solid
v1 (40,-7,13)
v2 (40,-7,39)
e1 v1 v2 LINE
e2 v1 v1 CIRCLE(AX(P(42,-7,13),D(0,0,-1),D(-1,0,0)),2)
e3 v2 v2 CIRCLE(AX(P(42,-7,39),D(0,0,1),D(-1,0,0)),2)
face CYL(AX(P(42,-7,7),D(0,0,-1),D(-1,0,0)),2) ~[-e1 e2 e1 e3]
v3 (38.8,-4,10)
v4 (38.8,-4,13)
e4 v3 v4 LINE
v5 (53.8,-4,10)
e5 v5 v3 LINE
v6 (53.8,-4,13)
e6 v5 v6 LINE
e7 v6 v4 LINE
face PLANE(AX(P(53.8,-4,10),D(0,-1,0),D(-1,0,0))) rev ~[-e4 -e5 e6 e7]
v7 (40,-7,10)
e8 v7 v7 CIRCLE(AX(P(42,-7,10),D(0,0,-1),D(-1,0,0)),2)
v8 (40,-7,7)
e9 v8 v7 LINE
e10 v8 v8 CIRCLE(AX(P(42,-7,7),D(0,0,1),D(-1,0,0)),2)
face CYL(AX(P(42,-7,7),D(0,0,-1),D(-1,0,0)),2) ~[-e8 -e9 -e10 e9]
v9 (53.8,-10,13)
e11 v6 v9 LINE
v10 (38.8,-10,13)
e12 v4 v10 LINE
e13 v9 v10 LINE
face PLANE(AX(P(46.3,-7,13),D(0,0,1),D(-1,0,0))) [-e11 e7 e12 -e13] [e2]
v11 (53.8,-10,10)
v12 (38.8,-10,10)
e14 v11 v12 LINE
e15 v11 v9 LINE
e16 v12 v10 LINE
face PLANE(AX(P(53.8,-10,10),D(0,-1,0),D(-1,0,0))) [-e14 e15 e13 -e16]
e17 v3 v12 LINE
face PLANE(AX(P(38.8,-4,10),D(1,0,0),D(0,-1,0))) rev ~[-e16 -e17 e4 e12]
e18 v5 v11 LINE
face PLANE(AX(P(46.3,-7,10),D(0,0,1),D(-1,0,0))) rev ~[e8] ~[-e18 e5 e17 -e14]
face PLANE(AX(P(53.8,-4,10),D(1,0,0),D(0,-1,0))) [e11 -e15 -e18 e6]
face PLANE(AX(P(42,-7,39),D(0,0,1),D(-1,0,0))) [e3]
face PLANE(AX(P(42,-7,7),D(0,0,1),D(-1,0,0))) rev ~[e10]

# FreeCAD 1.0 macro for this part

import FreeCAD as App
import Part
import Sketcher


def add_polygon(sketch, points):
    """Adds a closed chain of lines whose ends are joined by coincident constraints."""
    first, n = sketch.GeometryCount, len(points)
    for a, b in zip(points, points[1:] + points[:1]):
        sketch.addGeometry(Part.LineSegment(App.Vector(*a, 0), App.Vector(*b, 0)), False)
    for i in range(n):
        sketch.addConstraint(Sketcher.Constraint("Coincident", first + i, 2, first + (i + 1) % n, 1))

doc = App.newDocument("Part")
body = doc.addObject("PartDesign::Body", "Body")

# Sketch on XY plane
sketch1 = body.newObject("Sketcher::SketchObject", "Sketch")
sketch1.AttachmentSupport = (doc.getObject("XY_Plane"), [""])
sketch1.MapMode = "FlatFace"
sketch1.AttachmentOffset = App.Placement(App.Vector(0, 0, 3), App.Rotation())
add_polygon(sketch1, [(58.2, 73), (58.2, 67), (73.2, 67), (73.2, 73)])  # lines 0-3
sketch1.addConstraint(Sketcher.Constraint("Vertical", 0))
sketch1.addConstraint(Sketcher.Constraint("Horizontal", 1))
sketch1.addConstraint(Sketcher.Constraint("Vertical", 2))
sketch1.addConstraint(Sketcher.Constraint("Horizontal", 3))
sketch1.addConstraint(Sketcher.Constraint("DistanceX", 1, 1, 1, 2, 15.0))
sketch1.addConstraint(Sketcher.Constraint("DistanceY", 0, 2, 0, 1, 6.0))
sketch1.addConstraint(Sketcher.Constraint("DistanceY", -1, 1, 0, 2, 67.0))
sketch1.addConstraint(Sketcher.Constraint("DistanceX", -1, 1, 0, 2, 58.2))
pad1 = body.newObject("PartDesign::Pad", "Pad")
pad1.Profile = sketch1
pad1.Length = 3
body2 = doc.addObject("PartDesign::Body", "Body001")

# Sketch on XY plane
sketch2 = body2.newObject("Sketcher::SketchObject", "Sketch001")
sketch2.AttachmentSupport = (doc.getObject("XY_Plane001"), [""])
sketch2.MapMode = "FlatFace"
sketch2.AttachmentOffset = App.Placement(App.Vector(0, 0, 7), App.Rotation())
sketch2.addGeometry(Part.Circle(App.Vector(70, 70, 0), App.Vector(0, 0, 1), 1.5), False)
sketch2.addConstraint(Sketcher.Constraint("Diameter", 0, 3.0))
sketch2.addConstraint(Sketcher.Constraint("DistanceX", -1, 1, 0, 3, 70.0))
sketch2.addConstraint(Sketcher.Constraint("DistanceY", -1, 1, 0, 3, 70.0))
pad2 = body2.newObject("PartDesign::Pad", "Pad001")
pad2.Profile = sketch2
pad2.Length = 25
body3 = doc.addObject("PartDesign::Body", "Body002")

# Sketch on XY plane
sketch3 = body3.newObject("Sketcher::SketchObject", "Sketch002")
sketch3.AttachmentSupport = (doc.getObject("XY_Plane002"), [""])
sketch3.MapMode = "FlatFace"
sketch3.addGeometry(Part.Circle(App.Vector(70, 70, 0), App.Vector(0, 0, 1), 2), False)
sketch3.addConstraint(Sketcher.Constraint("Diameter", 0, 4.0))
sketch3.addConstraint(Sketcher.Constraint("DistanceX", -1, 1, 0, 3, 70.0))
sketch3.addConstraint(Sketcher.Constraint("DistanceY", -1, 1, 0, 3, 70.0))
pad3 = body3.newObject("PartDesign::Pad", "Pad002")
pad3.Profile = sketch3
pad3.Length = 32
doc.recompute()

boolean = body3.newObject("PartDesign::Boolean", "Boolean")
boolean.Type = "Fuse"
boolean.addObjects([body])
doc.recompute()

boolean2 = body3.newObject("PartDesign::Boolean", "Boolean001")
boolean2.Type = "Fuse"
boolean2.addObjects([body2])
body4 = doc.addObject("PartDesign::Body", "Body003")
doc.recompute()

body3.Placement = App.Placement(App.Vector(112, 63, 7), App.Rotation(App.Vector(0, 0, 1), 180))
boolean3 = body4.newObject("PartDesign::Boolean", "Boolean002")
boolean3.Type = "Fuse"
boolean3.addObjects([body3])

doc.recompute()
